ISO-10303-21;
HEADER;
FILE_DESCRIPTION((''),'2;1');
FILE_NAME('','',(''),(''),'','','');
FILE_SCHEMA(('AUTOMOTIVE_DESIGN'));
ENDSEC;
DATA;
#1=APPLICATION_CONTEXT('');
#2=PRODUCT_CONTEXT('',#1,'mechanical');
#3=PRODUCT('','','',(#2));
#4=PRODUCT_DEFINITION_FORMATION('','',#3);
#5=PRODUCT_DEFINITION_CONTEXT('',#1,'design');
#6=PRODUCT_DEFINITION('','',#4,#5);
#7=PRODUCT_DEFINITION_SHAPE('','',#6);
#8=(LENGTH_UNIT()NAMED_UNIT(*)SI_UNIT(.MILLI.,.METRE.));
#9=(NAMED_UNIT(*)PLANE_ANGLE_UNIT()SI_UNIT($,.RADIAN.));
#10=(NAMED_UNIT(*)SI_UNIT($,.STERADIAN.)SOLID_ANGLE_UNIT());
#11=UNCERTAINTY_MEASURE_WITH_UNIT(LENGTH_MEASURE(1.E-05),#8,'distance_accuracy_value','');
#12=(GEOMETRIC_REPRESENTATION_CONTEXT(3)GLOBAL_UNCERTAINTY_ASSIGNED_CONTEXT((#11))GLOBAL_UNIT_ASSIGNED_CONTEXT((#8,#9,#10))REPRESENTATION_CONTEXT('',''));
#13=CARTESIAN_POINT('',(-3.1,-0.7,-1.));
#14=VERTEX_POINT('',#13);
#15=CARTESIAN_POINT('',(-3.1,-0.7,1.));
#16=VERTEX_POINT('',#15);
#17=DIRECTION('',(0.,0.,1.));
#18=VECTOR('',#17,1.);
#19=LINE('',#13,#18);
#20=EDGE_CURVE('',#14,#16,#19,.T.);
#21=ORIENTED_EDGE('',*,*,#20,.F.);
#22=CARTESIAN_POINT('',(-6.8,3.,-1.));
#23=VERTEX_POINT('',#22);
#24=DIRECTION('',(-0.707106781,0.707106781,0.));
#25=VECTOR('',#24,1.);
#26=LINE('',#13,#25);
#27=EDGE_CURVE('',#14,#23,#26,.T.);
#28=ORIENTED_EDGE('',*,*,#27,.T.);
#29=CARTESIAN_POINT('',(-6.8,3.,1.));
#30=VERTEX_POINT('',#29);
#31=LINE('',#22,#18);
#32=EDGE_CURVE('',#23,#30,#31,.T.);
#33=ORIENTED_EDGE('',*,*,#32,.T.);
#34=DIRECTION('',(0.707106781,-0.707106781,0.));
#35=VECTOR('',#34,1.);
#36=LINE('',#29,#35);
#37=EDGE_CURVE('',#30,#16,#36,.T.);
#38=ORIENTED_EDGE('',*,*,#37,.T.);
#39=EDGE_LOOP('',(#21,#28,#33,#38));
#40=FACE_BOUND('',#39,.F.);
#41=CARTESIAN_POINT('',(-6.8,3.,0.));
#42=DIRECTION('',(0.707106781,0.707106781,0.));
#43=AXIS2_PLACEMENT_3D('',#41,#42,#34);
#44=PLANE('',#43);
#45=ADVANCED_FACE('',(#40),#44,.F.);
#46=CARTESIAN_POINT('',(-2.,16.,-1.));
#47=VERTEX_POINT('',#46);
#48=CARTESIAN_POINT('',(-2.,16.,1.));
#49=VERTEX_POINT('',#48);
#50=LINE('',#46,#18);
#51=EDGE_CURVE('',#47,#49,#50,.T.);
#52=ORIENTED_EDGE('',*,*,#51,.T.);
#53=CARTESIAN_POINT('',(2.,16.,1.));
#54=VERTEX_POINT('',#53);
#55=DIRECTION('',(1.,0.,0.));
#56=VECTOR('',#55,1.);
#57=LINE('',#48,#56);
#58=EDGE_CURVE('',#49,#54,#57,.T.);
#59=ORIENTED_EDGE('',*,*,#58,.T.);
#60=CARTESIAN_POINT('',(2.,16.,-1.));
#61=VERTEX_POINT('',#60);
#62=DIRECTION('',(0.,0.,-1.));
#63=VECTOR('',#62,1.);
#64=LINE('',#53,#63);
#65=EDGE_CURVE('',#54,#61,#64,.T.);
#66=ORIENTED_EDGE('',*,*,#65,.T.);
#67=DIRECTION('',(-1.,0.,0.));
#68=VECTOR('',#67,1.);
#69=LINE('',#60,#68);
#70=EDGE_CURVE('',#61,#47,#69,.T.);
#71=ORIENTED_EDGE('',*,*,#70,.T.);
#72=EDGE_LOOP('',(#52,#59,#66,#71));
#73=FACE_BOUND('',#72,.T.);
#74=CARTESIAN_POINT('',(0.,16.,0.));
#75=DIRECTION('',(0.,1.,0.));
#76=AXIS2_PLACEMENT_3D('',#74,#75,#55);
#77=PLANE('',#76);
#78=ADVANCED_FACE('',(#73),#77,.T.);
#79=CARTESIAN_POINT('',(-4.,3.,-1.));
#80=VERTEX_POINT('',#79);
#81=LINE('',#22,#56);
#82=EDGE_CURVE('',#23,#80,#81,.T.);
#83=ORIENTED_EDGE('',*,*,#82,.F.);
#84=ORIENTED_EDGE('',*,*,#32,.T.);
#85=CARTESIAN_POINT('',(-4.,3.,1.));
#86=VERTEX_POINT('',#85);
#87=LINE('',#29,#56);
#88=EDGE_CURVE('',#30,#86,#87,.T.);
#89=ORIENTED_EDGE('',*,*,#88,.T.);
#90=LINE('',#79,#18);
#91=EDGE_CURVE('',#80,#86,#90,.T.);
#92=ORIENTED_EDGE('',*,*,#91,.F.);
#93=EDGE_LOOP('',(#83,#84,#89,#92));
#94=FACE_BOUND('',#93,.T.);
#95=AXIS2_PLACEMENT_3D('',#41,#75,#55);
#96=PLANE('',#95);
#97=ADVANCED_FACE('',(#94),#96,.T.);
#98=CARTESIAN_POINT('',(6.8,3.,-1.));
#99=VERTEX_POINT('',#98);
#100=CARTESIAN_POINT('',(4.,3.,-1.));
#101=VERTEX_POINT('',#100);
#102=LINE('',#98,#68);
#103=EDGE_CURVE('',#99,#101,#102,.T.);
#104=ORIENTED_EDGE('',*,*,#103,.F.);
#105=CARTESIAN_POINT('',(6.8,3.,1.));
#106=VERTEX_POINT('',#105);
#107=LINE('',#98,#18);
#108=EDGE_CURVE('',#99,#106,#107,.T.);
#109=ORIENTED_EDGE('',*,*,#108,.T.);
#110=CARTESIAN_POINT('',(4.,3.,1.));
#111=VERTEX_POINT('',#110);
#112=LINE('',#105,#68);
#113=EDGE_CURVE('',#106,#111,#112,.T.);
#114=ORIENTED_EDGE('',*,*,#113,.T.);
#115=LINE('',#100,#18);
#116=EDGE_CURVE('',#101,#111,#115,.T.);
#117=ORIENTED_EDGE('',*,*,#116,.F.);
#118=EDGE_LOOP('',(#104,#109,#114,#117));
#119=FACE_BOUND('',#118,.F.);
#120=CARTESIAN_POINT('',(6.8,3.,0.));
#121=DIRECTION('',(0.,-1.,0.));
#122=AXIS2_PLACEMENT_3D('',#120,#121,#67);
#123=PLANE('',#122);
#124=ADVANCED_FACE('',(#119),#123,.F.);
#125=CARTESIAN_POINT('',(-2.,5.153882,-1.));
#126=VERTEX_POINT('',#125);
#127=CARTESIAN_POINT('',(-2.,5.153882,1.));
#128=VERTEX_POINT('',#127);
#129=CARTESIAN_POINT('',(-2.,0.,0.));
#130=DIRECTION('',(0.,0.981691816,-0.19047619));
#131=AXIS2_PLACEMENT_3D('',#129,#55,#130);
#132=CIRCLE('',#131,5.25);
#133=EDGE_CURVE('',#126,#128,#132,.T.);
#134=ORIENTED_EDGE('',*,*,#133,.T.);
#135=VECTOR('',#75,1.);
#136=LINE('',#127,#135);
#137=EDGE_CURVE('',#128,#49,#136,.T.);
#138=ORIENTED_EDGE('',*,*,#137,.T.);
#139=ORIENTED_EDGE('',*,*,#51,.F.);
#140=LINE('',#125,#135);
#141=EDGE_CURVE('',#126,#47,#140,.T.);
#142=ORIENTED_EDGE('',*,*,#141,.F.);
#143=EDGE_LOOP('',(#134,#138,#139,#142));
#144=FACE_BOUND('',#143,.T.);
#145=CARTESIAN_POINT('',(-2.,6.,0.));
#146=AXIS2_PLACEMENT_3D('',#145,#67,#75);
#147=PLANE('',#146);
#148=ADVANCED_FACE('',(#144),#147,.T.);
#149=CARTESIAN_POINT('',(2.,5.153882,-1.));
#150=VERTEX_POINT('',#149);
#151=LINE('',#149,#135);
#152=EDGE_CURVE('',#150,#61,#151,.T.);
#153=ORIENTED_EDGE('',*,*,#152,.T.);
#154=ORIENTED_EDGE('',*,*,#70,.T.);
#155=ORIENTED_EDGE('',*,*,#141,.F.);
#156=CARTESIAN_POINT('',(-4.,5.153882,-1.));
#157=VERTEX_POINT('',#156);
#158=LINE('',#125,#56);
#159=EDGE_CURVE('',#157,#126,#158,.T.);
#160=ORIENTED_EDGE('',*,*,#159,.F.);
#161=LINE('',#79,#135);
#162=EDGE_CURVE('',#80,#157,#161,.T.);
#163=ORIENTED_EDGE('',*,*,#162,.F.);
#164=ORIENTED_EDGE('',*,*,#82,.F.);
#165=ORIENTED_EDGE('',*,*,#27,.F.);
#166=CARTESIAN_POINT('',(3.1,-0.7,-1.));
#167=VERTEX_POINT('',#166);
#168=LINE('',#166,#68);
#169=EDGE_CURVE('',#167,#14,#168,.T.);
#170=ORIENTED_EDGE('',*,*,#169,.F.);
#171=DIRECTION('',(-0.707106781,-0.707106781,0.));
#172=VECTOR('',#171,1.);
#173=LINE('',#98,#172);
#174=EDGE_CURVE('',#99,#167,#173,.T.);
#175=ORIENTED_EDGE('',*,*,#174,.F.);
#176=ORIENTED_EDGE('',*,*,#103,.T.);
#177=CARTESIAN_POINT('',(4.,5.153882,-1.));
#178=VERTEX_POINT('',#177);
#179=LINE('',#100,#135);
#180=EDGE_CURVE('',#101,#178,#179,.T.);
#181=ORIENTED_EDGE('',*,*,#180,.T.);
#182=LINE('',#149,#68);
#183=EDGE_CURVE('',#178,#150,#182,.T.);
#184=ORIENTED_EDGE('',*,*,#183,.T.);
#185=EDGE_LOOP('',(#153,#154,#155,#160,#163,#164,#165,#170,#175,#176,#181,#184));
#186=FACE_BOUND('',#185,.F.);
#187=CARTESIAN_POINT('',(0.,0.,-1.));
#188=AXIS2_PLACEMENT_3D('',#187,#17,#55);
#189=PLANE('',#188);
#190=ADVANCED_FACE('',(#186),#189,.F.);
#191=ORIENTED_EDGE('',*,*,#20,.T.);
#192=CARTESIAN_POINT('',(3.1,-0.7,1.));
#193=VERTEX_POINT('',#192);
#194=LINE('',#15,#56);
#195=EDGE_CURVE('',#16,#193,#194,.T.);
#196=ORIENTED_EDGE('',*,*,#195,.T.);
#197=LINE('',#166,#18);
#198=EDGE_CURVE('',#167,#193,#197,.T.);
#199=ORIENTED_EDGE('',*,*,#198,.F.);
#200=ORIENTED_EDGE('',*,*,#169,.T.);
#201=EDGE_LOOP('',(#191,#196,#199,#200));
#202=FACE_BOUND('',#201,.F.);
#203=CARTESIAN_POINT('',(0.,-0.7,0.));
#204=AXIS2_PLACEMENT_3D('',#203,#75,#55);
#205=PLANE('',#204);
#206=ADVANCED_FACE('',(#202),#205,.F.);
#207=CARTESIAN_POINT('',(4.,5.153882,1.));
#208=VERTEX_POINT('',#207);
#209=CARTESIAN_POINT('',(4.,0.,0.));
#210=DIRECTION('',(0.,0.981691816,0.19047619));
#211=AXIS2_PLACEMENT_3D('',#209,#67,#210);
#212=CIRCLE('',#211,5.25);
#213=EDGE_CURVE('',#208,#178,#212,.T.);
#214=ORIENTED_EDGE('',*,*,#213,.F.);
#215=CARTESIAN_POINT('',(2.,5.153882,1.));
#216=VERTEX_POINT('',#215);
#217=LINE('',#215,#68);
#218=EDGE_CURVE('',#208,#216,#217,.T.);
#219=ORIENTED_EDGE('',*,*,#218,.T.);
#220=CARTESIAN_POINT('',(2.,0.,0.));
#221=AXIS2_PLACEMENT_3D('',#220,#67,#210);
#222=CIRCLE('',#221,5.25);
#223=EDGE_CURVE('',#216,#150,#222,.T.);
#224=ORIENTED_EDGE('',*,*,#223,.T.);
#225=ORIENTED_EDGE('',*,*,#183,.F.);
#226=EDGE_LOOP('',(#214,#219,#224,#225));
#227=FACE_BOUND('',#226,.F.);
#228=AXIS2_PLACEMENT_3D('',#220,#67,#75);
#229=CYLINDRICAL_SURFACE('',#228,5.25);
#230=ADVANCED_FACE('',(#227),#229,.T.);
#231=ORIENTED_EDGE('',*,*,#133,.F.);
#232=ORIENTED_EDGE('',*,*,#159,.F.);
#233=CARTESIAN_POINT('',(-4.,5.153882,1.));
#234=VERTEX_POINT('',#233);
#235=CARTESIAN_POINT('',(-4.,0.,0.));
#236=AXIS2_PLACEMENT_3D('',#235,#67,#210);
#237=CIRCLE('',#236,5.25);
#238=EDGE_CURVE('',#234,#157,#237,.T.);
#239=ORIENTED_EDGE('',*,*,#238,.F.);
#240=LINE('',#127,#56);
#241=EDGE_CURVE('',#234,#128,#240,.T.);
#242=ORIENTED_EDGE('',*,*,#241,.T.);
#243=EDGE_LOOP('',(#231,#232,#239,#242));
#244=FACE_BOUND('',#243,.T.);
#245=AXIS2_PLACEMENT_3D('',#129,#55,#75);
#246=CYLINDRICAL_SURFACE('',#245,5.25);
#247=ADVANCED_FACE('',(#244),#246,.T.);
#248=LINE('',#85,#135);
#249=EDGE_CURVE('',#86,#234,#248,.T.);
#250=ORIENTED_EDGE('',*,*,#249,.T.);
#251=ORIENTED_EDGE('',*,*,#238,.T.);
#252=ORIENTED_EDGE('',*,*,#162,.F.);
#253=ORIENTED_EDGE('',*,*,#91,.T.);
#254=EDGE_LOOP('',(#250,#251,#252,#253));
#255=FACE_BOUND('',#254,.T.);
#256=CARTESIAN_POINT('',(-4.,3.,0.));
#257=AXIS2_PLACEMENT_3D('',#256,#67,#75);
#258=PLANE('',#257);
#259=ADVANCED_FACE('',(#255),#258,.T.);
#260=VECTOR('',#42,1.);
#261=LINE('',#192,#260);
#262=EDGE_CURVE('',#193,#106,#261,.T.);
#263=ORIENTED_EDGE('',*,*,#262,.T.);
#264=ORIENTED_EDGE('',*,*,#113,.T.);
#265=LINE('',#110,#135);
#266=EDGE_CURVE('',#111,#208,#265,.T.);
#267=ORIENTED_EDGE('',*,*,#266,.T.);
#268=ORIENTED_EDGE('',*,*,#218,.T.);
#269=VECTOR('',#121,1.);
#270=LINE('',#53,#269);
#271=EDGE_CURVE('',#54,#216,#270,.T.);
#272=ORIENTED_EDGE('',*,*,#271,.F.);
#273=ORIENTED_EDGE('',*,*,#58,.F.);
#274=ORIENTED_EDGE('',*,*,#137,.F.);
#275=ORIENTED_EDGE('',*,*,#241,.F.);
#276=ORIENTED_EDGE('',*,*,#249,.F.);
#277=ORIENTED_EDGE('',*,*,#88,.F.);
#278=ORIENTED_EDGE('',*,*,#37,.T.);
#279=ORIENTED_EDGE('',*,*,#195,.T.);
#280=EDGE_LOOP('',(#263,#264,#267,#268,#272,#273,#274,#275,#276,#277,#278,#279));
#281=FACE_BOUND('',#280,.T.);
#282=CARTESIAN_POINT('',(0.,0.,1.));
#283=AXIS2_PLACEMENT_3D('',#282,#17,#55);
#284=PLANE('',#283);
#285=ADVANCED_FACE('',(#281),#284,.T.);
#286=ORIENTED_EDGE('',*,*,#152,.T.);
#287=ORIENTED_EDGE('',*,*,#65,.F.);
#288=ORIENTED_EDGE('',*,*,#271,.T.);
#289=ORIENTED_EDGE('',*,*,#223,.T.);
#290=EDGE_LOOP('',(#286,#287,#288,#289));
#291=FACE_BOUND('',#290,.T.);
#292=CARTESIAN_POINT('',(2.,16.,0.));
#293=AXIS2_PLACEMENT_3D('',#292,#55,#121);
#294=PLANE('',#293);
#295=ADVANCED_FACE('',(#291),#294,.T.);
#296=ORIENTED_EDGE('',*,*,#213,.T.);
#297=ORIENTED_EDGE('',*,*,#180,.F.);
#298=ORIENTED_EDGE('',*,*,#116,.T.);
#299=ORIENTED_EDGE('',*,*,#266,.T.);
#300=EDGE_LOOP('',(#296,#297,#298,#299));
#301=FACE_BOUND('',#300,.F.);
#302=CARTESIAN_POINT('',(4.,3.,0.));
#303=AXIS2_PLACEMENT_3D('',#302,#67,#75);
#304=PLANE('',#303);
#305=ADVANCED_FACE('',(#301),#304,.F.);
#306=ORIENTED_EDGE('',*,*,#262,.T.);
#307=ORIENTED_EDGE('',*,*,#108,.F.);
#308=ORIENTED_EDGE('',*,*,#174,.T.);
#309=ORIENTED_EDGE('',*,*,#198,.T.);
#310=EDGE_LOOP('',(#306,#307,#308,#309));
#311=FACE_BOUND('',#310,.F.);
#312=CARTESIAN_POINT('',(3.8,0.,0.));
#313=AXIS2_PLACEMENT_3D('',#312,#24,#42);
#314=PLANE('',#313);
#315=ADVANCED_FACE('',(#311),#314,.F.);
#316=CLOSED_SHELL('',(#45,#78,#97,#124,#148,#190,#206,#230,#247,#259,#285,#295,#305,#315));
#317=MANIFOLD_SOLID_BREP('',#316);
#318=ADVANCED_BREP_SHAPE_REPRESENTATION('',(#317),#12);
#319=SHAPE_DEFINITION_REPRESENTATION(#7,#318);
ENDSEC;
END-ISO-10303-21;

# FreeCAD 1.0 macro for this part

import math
import FreeCAD as App
import Part
import Sketcher

V = App.Vector


def add_polygon(sketch, points):
    """Adds a closed chain of lines whose ends are joined by coincident constraints."""
    first, n = sketch.GeometryCount, len(points)
    for a, b in zip(points, points[1:] + points[:1]):
        sketch.addGeometry(Part.LineSegment(App.Vector(*a, 0), App.Vector(*b, 0)), False)
    for i in range(n):
        sketch.addConstraint(Sketcher.Constraint("Coincident", first + i, 2, first + (i + 1) % n, 1))

doc = App.newDocument("Part")
body = doc.addObject("PartDesign::Body", "Body")

sketch1 = body.newObject("Sketcher::SketchObject", "Sketch")
sketch1.AttachmentSupport = (doc.getObject("XY_Plane"), [""])
sketch1.MapMode = "FlatFace"
add_polygon(sketch1, [(2, 16), (-2, 16), (-2, 6), (-4, 6), (-4, 3), (-6.8, 3), (-3.1, -0.7), (3.1, -0.7), (6.8, 3), (4, 3), (4, 6), (2, 6)])
sketch1.addConstraint([
    Sketcher.Constraint("Horizontal", 0),
    Sketcher.Constraint("Vertical", 1),
    Sketcher.Constraint("Horizontal", 2),
    Sketcher.Constraint("Vertical", 3),
    Sketcher.Constraint("Horizontal", 4),
    Sketcher.Constraint("Horizontal", 6),
    Sketcher.Constraint("Horizontal", 8),
    Sketcher.Constraint("Vertical", 9),
    Sketcher.Constraint("Horizontal", 10),
    Sketcher.Constraint("Vertical", 11),
    Sketcher.Constraint("Symmetric", 4, 2, 7, 2, -2),
    Sketcher.Constraint("Symmetric", 2, 2, 9, 2, -2),
    Sketcher.Constraint("Perpendicular", 5, 7),
    Sketcher.Constraint("Equal", 2, 10),
    Sketcher.Constraint("Equal", 5, 7),
    Sketcher.Constraint("DistanceX", 0, 2, 0, 1, 4.0),
    Sketcher.Constraint("DistanceY", 1, 2, 1, 1, 10.0),
    Sketcher.Constraint("DistanceY", 3, 2, 3, 1, 3.0),
    Sketcher.Constraint("DistanceX", 2, 2, -1, 1, 4.0),
    Sketcher.Constraint("DistanceY", -1, 1, 3, 2, 3.0),
    Sketcher.Constraint("DistanceY", 5, 2, 3, 2, 3.7),
    Sketcher.Constraint("DistanceX", 4, 2, 4, 1, 2.8),
])
pad1 = body.newObject("PartDesign::Pad", "Pad")
pad1.Profile = sketch1
pad1.Length = 2
pad1.Midplane = True

sketch2 = body.newObject("Sketcher::SketchObject", "Sketch001")
sketch2.AttachmentSupport = (doc.getObject("YZ_Plane"), [""])
sketch2.MapMode = "FlatFace"
sketch2.AttachmentOffset = App.Placement(V(0, 0, 2), App.Rotation())
sketch2.addGeometry([
    Part.ArcOfCircle(Part.Circle(V(0, 0, 0), V(0, 0, 1), 8), math.radians(-90), math.radians(90)),
    Part.LineSegment(V(0, 8, 0), V(0, 5.2, 0)),
    Part.ArcOfCircle(Part.Circle(V(0, 0, 0), V(0, 0, 1), 5.2), math.radians(-90), math.radians(90)),
    Part.LineSegment(V(0, -5.2, 0), V(0, -8, 0)),
], False)
sketch2.addConstraint([
    Sketcher.Constraint("Coincident", 0, 2, 1, 1),
    Sketcher.Constraint("Coincident", 1, 2, 2, 2),
    Sketcher.Constraint("Coincident", 2, 1, 3, 1),
    Sketcher.Constraint("Coincident", 3, 2, 0, 1),
    Sketcher.Constraint("Vertical", 1),
    Sketcher.Constraint("Vertical", 3),
    Sketcher.Constraint("Coincident", 0, 3, -1, 1),
    Sketcher.Constraint("Coincident", 2, 3, -1, 1),
    Sketcher.Constraint("PointOnObject", 0, 2, -2),
    Sketcher.Constraint("PointOnObject", 2, 1, -2),
    Sketcher.Constraint("Radius", 0, 8.0),
    Sketcher.Constraint("Radius", 2, 5.25),
])
pocket1 = body.newObject("PartDesign::Pocket", "Pocket")
pocket1.Profile = sketch2
pocket1.Length = 2
pocket1.Reversed = True
doc.recompute()

mirrored = body.newObject("PartDesign::Mirrored", "Mirrored")
mirrored.Originals = [pocket1]
mirrored.MirrorPlane = (doc.getObject("YZ_Plane"), [""])
body.Tip = mirrored

doc.recompute()
